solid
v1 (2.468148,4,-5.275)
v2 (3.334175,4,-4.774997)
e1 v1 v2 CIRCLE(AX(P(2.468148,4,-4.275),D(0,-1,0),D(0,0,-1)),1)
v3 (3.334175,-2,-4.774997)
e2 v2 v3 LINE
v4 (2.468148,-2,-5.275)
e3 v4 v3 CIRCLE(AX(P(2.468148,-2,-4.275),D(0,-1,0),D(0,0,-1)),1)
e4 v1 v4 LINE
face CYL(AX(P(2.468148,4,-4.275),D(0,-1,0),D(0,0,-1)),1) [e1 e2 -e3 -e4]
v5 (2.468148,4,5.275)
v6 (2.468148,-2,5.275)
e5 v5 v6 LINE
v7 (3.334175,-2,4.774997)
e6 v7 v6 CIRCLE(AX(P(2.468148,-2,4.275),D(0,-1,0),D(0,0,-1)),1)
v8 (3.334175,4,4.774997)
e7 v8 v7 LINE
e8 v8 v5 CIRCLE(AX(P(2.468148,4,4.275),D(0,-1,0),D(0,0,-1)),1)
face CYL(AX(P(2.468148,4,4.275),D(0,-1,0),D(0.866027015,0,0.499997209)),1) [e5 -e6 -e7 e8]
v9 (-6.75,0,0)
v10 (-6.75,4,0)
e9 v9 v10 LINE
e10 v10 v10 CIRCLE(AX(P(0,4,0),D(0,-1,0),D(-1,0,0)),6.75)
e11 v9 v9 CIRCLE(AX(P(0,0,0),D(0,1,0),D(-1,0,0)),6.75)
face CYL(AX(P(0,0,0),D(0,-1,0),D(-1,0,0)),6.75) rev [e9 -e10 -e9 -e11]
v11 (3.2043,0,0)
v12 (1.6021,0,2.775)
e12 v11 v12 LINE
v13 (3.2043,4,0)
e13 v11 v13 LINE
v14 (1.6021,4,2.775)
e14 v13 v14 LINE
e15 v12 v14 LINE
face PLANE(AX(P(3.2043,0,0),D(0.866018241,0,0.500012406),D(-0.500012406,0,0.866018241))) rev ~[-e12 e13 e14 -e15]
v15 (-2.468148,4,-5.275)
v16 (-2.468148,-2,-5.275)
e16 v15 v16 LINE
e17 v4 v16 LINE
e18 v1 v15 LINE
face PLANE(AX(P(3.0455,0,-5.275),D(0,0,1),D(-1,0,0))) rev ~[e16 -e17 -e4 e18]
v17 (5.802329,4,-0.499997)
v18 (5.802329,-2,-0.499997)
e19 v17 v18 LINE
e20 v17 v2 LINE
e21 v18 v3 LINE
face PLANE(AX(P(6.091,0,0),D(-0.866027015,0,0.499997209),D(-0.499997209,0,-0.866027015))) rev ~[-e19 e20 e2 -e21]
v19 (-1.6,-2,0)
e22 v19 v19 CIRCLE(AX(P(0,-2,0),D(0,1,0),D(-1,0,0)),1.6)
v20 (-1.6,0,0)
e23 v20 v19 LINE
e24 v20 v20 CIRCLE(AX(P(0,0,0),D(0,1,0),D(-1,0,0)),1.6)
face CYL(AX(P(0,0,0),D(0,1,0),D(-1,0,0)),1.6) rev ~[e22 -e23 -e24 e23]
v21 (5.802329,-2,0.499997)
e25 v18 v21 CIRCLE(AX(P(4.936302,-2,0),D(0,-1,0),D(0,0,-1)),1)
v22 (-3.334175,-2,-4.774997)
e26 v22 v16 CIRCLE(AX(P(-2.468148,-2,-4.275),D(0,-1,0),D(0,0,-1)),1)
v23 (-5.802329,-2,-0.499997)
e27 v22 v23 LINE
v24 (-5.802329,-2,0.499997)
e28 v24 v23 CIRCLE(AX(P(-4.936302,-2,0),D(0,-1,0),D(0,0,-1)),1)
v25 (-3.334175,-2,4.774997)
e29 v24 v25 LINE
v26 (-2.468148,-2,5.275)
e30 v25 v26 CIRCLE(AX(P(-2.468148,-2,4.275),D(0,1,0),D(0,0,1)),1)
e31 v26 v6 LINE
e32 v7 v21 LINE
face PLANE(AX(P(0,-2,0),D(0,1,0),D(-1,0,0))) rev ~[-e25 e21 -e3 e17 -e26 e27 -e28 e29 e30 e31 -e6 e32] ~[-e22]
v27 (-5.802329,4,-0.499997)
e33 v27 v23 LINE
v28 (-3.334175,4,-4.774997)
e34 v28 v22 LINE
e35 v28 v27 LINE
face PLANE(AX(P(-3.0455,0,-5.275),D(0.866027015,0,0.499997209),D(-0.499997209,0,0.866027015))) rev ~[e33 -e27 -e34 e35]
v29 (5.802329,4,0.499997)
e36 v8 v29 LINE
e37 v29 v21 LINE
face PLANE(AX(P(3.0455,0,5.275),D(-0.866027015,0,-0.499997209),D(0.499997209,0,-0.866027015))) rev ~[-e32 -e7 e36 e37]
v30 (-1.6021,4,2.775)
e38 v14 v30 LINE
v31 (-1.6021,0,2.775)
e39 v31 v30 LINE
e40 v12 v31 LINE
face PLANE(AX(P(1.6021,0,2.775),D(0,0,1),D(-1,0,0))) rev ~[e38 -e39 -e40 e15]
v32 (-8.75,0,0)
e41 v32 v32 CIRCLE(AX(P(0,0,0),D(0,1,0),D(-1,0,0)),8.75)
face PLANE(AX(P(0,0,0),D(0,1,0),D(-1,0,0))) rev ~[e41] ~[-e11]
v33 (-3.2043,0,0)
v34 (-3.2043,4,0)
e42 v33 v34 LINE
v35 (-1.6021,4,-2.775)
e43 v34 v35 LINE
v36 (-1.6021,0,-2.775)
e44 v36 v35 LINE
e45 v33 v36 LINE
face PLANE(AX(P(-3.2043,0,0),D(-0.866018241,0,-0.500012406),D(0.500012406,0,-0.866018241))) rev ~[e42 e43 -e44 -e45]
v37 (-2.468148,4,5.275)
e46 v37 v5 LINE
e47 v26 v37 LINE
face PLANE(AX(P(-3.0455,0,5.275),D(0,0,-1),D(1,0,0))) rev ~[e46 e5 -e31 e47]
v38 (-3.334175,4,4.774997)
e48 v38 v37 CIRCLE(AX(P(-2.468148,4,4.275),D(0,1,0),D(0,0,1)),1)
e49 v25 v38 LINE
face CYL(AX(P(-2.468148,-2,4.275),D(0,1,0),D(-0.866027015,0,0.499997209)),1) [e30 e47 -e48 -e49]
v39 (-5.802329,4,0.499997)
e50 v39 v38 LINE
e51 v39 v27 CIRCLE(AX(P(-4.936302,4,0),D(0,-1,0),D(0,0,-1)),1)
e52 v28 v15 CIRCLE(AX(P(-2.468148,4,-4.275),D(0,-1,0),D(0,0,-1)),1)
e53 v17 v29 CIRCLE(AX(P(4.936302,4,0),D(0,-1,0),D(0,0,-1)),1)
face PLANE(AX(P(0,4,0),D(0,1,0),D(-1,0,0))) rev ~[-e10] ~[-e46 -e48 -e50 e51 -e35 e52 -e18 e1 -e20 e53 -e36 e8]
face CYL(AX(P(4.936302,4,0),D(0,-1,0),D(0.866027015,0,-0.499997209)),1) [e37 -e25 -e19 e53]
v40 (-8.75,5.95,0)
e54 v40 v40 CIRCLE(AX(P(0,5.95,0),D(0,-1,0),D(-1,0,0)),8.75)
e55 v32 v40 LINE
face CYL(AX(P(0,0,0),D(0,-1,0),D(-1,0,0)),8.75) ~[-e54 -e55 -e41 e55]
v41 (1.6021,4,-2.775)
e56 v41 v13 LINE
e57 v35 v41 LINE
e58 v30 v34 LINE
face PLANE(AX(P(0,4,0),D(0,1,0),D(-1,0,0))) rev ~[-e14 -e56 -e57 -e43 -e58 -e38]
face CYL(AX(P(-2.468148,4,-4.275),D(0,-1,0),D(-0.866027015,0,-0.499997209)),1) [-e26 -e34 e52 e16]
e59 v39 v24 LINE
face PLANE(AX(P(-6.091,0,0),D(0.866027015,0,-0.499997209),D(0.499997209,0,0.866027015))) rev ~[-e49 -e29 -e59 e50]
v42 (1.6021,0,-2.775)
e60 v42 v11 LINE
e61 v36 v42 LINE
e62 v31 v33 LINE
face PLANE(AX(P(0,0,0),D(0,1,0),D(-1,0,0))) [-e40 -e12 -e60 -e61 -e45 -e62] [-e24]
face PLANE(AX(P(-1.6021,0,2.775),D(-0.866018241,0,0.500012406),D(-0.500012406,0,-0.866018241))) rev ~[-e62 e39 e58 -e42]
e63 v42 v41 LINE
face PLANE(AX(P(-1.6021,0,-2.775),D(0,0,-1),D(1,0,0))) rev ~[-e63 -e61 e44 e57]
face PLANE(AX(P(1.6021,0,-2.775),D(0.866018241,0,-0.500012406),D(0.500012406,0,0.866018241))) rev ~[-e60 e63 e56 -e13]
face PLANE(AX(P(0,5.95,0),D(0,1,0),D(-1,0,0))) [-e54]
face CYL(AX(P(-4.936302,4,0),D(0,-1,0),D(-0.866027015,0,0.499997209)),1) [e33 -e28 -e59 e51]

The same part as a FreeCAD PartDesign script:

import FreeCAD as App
import Part
import Sketcher
from FreeCAD import Vector
Q = App.Units.Quantity


def edges_at(feature, points):
    """Names of the edges that pass closest to the given points."""
    edges = feature.Shape.Edges
    near = lambda p: min(range(len(edges)), key=lambda i: edges[i].distToShape(Part.Vertex(*p))[0])
    return sorted({f"Edge{near(p) + 1}" for p in points})


def add_polygon(sketch, points):
    """Adds a closed chain of lines whose ends are joined by coincident constraints."""
    first, n = sketch.GeometryCount, len(points)
    for a, b in zip(points, points[1:] + points[:1]):
        sketch.addGeometry(Part.LineSegment(App.Vector(*a, 0), App.Vector(*b, 0)), False)
    for i in range(n):
        sketch.addConstraint(Sketcher.Constraint("Coincident", first + i, 2, first + (i + 1) % n, 1))

doc = App.newDocument("Part")
body = doc.addObject("PartDesign::Body", "Body")

sketch1 = body.newObject("Sketcher::SketchObject", "Sketch")
sketch1.AttachmentSupport = (doc.getObject("XZ_Plane"), [""])
sketch1.MapMode = "FlatFace"
sketch1.addGeometry(Part.Circle(Vector(0, 0, 0), Vector(0, 0, 1), 9), False)
sketch1.addConstraint([
    Sketcher.Constraint("Coincident", 0, 3, -1, 1),
    Sketcher.Constraint("Diameter", 0, Q("17.5 mm")),
])
pad1 = body.newObject("PartDesign::Pad", "Pad")
pad1.Profile = sketch1
pad1.Length = 5.95
pad1.Reversed = True

sketch2 = body.newObject("Sketcher::SketchObject", "Sketch001")
sketch2.AttachmentSupport = (doc.getObject("XZ_Plane"), [""])
sketch2.MapMode = "FlatFace"
add_polygon(sketch2, [(-3, -5.3), (-6.1, 0), (-3, 5.3), (3, 5.3), (6.1, 0), (3, -5.3)])
sketch2.addGeometry(Part.Circle(Vector(0, 0, 0), Vector(0, 0, 1), 1.6), False)
sketch2.addConstraint([
    Sketcher.Constraint("Horizontal", 2),
    Sketcher.Constraint("Horizontal", 5),
    Sketcher.Constraint("Coincident", 6, 3, -1, 1),
    Sketcher.Constraint("Symmetric", 0, 2, 3, 2, -1, 1),
    Sketcher.Constraint("Symmetric", 1, 2, 4, 2, -1, 1),
    Sketcher.Constraint("PointOnObject", 0, 2, -1),
    Sketcher.Constraint("Parallel", 0, 3),
    Sketcher.Constraint("Vertical", 2, 2, 4, 2),
    Sketcher.Constraint("Diameter", 6, Q("3.2 mm")),
    Sketcher.Constraint("Angle", 0, Q("119.9998 deg")),
    Sketcher.Constraint("DistanceX", 2, 1, 2, 2, Q("6.091 mm")),
    Sketcher.Constraint("DistanceY", 4, 2, 2, 2, Q("10.55 mm")),
])
pad2 = body.newObject("PartDesign::Pad", "Pad001")
pad2.Profile = sketch2
pad2.Length = 2

sketch3 = body.newObject("Sketcher::SketchObject", "Sketch002")
sketch3.AttachmentSupport = (doc.getObject("XZ_Plane"), [""])
sketch3.MapMode = "FlatFace"
sketch3.addGeometry(Part.Circle(Vector(0, 0, 0), Vector(0, 0, 1), 6.8), False)
add_polygon(sketch3, [(-3, 5.3), (-6.1, 0), (-3, -5.3), (3, -5.3), (6.1, 0), (3, 5.3)])
add_polygon(sketch3, [(3.2, 0), (1.6, -2.8), (-1.6, -2.8), (-3.2, 0), (-1.6, 2.8), (1.6, 2.8)])
sketch3.addConstraint([
    Sketcher.Constraint("Horizontal", 3),
    Sketcher.Constraint("Horizontal", 6),
    Sketcher.Constraint("Horizontal", 8),
    Sketcher.Constraint("Horizontal", 11),
    Sketcher.Constraint("Coincident", 0, 3, -1, 1),
    Sketcher.Constraint("Symmetric", 1, 2, 4, 2, -1, 1),
    Sketcher.Constraint("Symmetric", 2, 2, 5, 2, -1, 1),
    Sketcher.Constraint("Symmetric", 7, 2, 10, 2, -1, 1),
    Sketcher.Constraint("Symmetric", 9, 2, 12, 2, -1, 1),
    Sketcher.Constraint("PointOnObject", 1, 2, -1),
    Sketcher.Constraint("PointOnObject", 9, 2, -1),
    Sketcher.Constraint("Parallel", 1, 4),
    Sketcher.Constraint("Parallel", 4, 7),
    Sketcher.Constraint("Parallel", 5, 9),
    Sketcher.Constraint("Parallel", 9, 12),
    Sketcher.Constraint("Vertical", 3, 2, 5, 2),
    Sketcher.Constraint("Diameter", 0, Q("13.5 mm")),
    Sketcher.Constraint("DistanceY", 3, 2, 7, 2, Q("2.5 mm")),
    Sketcher.Constraint("Angle", 1, Q("-119.9998 deg")),
    Sketcher.Constraint("DistanceX", 3, 1, 3, 2, Q("6.091 mm")),
    Sketcher.Constraint("DistanceY", 3, 2, 5, 2, Q("10.55 mm")),
    Sketcher.Constraint("DistanceX", 8, 2, 8, 1, Q("3.2042 mm")),
])
pocket1 = body.newObject("PartDesign::Pocket", "Pocket")
pocket1.Profile = sketch3
pocket1.Length = 4
doc.recompute()

fillet = body.newObject("PartDesign::Fillet", "Fillet")
fillet.Base = (pocket1, edges_at(pocket1, [
    (6.091, 1, 0),
    (-3.046, 1, 5.275),
    (3.046, 1, -5.275),
    (-3.046, 1, -5.275),
    (-6.091, 1, 0),
    (3.046, 1, 5.275),
]))
fillet.Radius = 1

doc.recompute()
